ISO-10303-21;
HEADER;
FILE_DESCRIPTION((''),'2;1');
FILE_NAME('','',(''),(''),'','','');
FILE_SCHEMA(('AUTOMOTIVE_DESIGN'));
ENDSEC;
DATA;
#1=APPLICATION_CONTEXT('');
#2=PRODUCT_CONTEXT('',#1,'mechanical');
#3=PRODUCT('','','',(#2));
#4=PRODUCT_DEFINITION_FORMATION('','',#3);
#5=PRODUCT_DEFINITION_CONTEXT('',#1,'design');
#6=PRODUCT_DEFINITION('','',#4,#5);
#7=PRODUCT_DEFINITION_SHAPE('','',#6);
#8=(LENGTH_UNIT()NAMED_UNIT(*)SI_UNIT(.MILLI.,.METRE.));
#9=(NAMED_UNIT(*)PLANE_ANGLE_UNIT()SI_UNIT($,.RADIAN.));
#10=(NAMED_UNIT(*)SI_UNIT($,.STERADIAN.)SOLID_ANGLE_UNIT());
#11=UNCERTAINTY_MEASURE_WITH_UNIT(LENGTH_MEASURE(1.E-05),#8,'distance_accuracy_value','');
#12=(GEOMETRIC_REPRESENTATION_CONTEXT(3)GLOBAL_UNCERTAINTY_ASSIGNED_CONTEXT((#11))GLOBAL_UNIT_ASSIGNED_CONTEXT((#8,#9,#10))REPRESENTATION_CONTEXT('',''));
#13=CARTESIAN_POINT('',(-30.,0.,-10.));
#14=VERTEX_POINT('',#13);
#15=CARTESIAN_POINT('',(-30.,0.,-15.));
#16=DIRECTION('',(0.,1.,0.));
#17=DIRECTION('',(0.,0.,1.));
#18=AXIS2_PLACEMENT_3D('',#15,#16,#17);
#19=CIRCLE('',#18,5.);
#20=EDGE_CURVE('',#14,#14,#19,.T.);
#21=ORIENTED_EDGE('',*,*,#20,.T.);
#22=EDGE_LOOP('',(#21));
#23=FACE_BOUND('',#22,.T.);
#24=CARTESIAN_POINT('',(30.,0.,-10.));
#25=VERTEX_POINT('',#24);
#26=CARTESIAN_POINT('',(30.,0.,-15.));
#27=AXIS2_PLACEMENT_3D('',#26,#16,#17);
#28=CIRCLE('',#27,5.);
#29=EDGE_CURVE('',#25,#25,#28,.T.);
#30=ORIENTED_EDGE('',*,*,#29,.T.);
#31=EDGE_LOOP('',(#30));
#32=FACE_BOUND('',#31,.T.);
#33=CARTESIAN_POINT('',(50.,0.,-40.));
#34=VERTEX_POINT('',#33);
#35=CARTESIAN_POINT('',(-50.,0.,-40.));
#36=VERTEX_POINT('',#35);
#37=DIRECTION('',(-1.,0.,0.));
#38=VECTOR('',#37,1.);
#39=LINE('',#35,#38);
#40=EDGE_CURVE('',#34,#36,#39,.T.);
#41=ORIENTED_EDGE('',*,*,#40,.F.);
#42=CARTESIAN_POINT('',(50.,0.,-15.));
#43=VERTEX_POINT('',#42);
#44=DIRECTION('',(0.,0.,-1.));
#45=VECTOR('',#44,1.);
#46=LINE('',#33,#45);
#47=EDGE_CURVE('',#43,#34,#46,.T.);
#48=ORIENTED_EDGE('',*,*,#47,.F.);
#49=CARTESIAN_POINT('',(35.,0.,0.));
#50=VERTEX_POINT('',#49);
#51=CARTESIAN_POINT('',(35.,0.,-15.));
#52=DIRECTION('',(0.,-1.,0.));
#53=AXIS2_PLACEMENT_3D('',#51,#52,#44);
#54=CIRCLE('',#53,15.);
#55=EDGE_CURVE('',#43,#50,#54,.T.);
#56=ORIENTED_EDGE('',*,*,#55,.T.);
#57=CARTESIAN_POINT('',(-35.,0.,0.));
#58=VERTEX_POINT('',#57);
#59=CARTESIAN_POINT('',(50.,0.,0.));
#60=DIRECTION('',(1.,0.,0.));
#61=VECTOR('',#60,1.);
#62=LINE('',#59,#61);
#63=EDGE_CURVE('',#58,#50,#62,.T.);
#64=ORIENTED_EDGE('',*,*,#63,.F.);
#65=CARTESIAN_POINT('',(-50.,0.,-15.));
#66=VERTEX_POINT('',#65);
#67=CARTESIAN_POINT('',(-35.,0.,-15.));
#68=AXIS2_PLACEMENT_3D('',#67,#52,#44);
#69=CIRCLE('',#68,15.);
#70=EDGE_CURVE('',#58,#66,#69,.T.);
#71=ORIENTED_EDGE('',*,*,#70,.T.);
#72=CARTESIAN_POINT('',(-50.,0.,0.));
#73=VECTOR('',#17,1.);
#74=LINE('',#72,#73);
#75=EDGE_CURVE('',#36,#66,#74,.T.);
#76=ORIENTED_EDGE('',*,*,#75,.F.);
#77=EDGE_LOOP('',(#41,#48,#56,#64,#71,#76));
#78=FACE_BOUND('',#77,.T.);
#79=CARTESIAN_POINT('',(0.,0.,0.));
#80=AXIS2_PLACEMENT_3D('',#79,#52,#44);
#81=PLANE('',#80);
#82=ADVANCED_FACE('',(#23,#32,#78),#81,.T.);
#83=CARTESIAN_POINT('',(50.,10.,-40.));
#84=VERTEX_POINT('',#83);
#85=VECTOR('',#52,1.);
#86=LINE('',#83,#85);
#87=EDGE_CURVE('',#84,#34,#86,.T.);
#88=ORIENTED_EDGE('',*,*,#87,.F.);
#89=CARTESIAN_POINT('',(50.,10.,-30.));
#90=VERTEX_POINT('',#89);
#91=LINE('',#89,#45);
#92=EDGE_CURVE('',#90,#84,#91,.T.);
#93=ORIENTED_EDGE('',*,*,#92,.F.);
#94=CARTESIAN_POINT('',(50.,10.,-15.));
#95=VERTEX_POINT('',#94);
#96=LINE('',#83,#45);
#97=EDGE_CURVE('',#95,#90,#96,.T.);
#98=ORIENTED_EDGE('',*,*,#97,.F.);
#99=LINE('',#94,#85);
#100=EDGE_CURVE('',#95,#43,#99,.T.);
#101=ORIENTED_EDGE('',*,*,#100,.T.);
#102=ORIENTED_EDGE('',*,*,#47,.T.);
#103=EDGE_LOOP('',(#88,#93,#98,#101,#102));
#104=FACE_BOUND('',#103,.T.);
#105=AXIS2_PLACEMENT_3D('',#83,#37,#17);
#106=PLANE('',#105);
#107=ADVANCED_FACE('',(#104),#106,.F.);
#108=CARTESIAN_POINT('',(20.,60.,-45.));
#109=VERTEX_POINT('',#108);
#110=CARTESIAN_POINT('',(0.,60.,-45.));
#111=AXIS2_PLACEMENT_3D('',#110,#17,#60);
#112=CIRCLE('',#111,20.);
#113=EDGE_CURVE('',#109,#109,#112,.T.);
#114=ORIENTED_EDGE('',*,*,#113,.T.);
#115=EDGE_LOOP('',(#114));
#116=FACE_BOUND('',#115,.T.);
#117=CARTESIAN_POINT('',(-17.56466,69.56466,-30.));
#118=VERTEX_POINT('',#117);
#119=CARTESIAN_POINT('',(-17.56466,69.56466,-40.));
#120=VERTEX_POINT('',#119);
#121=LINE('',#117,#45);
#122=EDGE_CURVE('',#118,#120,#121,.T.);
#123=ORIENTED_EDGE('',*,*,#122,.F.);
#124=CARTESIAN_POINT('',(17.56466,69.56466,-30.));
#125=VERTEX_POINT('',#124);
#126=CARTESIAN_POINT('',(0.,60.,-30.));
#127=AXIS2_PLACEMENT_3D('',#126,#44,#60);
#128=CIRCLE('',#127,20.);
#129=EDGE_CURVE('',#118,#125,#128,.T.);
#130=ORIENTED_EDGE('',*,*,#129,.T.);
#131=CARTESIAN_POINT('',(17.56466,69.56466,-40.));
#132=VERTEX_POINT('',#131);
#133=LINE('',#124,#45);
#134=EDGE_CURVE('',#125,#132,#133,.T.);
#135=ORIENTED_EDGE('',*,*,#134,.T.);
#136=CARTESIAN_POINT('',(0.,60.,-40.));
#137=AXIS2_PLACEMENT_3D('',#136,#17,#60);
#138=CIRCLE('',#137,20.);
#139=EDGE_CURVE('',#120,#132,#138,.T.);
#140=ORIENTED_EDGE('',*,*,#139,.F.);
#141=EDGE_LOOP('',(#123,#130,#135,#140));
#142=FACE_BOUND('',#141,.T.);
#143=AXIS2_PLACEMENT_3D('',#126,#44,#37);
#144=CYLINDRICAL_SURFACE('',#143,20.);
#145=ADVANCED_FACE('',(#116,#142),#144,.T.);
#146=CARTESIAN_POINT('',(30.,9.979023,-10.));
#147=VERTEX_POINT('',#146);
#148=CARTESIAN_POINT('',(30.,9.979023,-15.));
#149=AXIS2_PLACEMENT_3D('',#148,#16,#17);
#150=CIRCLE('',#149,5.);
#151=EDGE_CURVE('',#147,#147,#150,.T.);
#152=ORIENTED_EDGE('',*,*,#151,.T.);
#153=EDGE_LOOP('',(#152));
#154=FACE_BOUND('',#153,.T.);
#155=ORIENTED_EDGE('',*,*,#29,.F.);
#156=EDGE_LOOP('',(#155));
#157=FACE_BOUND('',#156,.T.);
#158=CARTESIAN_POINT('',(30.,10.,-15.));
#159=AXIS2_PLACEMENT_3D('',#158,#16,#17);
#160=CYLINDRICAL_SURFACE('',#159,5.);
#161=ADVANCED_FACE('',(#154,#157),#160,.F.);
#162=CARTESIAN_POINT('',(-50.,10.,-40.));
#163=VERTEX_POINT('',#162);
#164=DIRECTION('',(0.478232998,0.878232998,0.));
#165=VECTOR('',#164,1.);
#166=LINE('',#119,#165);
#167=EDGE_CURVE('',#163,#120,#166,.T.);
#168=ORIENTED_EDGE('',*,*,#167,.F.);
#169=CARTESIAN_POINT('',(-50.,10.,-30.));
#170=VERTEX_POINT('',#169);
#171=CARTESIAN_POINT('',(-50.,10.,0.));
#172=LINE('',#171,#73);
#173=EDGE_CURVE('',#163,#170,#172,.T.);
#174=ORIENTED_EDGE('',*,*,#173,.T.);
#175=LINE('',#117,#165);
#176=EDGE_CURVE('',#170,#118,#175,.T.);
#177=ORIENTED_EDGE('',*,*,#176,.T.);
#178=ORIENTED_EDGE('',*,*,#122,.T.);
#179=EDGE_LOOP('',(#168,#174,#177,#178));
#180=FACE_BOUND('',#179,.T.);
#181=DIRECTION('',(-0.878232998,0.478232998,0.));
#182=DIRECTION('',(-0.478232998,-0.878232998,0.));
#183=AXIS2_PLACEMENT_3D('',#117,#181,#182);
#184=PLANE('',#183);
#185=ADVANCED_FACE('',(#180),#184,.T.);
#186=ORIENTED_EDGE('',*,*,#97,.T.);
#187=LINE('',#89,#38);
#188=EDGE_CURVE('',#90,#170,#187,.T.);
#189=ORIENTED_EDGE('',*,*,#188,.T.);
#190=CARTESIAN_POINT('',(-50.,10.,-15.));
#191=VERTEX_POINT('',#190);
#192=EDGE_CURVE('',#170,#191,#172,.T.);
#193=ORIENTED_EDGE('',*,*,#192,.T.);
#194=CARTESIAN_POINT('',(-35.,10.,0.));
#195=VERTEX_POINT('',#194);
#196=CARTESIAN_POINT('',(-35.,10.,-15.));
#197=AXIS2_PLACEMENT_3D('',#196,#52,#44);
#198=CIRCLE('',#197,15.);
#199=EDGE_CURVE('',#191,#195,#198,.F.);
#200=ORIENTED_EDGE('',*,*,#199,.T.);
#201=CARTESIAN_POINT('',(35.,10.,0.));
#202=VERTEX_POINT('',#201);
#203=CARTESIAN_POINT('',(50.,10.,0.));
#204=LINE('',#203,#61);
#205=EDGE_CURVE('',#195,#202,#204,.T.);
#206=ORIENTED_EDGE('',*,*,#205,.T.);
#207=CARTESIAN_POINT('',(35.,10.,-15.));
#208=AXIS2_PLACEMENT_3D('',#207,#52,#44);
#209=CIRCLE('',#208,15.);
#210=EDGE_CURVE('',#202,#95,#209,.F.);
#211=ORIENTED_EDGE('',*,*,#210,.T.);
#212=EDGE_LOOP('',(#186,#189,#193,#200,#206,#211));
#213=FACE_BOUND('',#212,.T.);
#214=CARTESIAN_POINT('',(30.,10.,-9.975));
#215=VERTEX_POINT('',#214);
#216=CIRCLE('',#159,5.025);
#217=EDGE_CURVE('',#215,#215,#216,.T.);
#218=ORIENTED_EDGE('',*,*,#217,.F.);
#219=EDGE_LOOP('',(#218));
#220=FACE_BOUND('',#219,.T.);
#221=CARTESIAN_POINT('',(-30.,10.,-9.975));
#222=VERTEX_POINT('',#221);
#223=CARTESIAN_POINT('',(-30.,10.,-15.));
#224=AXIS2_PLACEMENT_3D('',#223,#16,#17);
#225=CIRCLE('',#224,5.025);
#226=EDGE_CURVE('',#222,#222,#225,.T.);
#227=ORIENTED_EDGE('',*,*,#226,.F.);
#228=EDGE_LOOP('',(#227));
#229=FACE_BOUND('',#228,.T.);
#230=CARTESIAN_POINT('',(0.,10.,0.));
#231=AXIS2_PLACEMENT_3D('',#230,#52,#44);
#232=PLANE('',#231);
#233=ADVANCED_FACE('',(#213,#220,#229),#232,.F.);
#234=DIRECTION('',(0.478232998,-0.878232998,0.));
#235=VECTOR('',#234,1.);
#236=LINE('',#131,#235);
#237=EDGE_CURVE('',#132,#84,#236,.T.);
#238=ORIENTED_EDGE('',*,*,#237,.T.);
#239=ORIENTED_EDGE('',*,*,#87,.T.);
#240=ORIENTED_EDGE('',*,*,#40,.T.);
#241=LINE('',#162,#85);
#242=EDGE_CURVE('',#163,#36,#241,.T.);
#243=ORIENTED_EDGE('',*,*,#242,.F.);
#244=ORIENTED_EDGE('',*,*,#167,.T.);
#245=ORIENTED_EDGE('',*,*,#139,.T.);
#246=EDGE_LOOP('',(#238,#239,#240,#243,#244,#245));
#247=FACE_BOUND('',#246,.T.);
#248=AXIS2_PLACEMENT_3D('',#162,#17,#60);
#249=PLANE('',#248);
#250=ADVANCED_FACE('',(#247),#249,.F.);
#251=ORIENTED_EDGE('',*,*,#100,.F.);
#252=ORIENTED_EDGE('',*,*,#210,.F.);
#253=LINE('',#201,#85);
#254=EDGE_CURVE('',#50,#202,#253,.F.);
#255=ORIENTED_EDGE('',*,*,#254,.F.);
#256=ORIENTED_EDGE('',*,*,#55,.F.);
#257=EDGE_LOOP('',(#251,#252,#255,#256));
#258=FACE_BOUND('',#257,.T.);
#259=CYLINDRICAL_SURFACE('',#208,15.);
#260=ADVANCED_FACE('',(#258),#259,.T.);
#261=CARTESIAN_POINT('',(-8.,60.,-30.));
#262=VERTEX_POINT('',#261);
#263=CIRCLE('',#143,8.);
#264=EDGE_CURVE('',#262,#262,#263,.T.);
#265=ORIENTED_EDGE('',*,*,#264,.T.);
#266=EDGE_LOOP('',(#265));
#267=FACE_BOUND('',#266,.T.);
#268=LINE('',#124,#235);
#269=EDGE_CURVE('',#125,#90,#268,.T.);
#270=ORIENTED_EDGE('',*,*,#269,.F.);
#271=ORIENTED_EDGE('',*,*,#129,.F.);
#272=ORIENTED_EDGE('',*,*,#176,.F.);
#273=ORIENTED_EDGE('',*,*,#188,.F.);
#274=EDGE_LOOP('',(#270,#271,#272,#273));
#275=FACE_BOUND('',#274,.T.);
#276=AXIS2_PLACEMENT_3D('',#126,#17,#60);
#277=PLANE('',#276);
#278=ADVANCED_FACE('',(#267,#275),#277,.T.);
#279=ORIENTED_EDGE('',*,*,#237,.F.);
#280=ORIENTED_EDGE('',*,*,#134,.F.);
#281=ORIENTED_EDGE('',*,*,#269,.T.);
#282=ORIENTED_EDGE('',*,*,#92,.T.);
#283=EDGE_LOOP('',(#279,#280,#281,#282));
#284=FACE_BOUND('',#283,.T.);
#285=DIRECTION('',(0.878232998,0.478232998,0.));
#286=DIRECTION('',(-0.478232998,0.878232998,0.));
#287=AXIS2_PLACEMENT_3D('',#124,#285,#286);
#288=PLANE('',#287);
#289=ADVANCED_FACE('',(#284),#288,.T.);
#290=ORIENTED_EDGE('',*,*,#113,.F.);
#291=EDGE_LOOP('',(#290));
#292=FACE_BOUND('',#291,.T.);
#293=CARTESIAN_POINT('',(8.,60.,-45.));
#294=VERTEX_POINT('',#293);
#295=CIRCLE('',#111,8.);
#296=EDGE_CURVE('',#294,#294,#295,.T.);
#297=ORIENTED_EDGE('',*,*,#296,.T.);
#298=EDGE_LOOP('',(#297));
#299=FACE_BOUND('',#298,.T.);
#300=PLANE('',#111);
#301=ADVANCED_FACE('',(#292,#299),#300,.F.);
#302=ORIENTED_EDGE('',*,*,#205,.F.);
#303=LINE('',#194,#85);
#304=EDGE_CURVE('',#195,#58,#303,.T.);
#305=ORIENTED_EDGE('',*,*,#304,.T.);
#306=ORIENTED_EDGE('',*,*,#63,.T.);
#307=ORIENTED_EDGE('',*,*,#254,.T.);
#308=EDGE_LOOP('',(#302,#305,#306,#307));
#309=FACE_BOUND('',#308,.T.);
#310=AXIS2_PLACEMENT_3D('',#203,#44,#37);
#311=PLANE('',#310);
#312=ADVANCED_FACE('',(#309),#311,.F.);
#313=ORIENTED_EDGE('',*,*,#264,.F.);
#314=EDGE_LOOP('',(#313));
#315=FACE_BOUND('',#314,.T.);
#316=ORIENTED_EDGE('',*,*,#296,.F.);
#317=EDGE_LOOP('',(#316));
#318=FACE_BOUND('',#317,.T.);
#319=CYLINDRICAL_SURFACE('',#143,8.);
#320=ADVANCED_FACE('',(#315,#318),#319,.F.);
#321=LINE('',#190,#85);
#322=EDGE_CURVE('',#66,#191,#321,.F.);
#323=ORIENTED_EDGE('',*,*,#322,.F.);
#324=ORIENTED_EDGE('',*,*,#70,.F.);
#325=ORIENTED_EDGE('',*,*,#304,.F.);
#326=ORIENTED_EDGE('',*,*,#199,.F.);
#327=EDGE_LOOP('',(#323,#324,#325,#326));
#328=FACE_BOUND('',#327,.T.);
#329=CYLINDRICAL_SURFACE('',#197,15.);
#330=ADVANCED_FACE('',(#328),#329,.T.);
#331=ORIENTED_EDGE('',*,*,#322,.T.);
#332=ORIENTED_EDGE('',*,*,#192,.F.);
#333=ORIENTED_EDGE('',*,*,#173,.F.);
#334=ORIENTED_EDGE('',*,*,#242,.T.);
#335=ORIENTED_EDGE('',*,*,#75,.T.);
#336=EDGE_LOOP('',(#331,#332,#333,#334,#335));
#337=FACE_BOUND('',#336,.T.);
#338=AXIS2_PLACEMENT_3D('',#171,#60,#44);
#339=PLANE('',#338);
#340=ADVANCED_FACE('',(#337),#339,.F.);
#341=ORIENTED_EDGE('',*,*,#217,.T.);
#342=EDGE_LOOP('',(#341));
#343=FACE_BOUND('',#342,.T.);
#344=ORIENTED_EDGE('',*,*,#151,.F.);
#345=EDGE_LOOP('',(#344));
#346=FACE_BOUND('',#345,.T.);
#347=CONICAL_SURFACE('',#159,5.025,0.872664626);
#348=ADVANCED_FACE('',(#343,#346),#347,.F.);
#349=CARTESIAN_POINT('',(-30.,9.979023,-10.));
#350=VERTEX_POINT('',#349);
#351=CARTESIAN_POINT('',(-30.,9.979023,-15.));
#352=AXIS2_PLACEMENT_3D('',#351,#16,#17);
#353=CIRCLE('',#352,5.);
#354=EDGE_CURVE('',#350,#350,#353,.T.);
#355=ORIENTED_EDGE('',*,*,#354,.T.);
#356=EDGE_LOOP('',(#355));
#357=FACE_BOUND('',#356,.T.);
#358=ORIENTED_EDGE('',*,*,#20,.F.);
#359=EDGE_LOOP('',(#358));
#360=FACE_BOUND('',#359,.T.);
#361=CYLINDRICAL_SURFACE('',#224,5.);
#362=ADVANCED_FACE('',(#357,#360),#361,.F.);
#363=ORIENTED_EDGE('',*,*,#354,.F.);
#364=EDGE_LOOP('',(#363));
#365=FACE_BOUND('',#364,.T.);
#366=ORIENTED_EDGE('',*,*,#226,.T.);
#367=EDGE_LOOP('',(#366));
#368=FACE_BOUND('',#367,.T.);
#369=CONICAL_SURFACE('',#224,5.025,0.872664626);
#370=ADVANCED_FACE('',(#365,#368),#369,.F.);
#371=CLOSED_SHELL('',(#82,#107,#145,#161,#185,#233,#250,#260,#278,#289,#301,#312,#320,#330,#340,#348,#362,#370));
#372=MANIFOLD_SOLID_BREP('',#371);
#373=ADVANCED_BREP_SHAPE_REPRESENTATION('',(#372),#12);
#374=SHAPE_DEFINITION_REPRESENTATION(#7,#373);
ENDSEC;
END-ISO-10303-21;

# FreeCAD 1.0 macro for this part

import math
import FreeCAD as App
import Part
import Sketcher

V = App.Vector


def edges_at(feature, points):
    """Names of the edges that pass closest to the given points."""
    edges = feature.Shape.Edges
    near = lambda p: min(range(len(edges)), key=lambda i: edges[i].distToShape(Part.Vertex(*p))[0])
    return sorted({f"Edge{near(p) + 1}" for p in points})


def add_polygon(sketch, points):
    """Adds a closed chain of lines whose ends are joined by coincident constraints."""
    first, n = sketch.GeometryCount, len(points)
    for a, b in zip(points, points[1:] + points[:1]):
        sketch.addGeometry(Part.LineSegment(App.Vector(*a, 0), App.Vector(*b, 0)), False)
    for i in range(n):
        sketch.addConstraint(Sketcher.Constraint("Coincident", first + i, 2, first + (i + 1) % n, 1))

doc = App.newDocument("Part")
body = doc.addObject("PartDesign::Body", "Body")

# Sketch on XZ plane
sketch1 = doc.addObject("Sketcher::SketchObject", "Sketch")
body.addObject(sketch1)
sketch1.AttachmentSupport = (doc.XZ_Plane, [""])
sketch1.MapMode = "FlatFace"
add_polygon(sketch1, [(-50, -40), (-50, 0), (50, 0), (50, -40)])  # lines 0-3
sketch1.addConstraint([
    Sketcher.Constraint("Vertical", 0),
    Sketcher.Constraint("Horizontal", 1),
    Sketcher.Constraint("Vertical", 2),
    Sketcher.Constraint("Horizontal", 3),
    Sketcher.Constraint("Symmetric", 0, 2, 1, 2, -1, 1),
    Sketcher.Constraint("DistanceX", 1, 1, 1, 2, 100.0),
    Sketcher.Constraint("DistanceY", 0, 1, 0, 2, 40.0),
])
pad1 = doc.addObject("PartDesign::Pad", "Pad")
body.addObject(pad1)
pad1.Profile = sketch1
pad1.Length = 10
pad1.Reversed = True

# Sketch on XY plane
sketch2 = doc.addObject("Sketcher::SketchObject", "Sketch001")
body.addObject(sketch2)
sketch2.AttachmentSupport = (doc.XY_Plane, [""])
sketch2.MapMode = "FlatFace"
sketch2.AttachmentOffset = App.Placement(V(0, 0, -40), App.Rotation())
sketch2.addGeometry([
    Part.LineSegment(V(18, 70, 0), V(50, 10, 0)),  # 0
    Part.LineSegment(V(50, 10, 0), V(-50, 10, 0)),  # 1
    Part.LineSegment(V(-50, 10, 0), V(-18, 70, 0)),  # 2
    Part.ArcOfCircle(Part.Circle(V(0, 60, 0), V(0, 0, 1), 20), math.radians(29), math.radians(151)),  # 3
    Part.Circle(V(0, 60, 0), V(0, 0, 1), 8),  # 4
], False)
sketch2.addConstraint([
    Sketcher.Constraint("Coincident", 0, 2, 1, 1),
    Sketcher.Constraint("Coincident", 1, 2, 2, 1),
    Sketcher.Constraint("Tangent", 2, 2, 3, 2),
    Sketcher.Constraint("Tangent", 3, 1, 0, 1),
    Sketcher.Constraint("Horizontal", 1),
    Sketcher.Constraint("Coincident", 4, 3, 3, 3),
    Sketcher.Constraint("Symmetric", 2, 2, 3, 1, -2),
    Sketcher.Constraint("Diameter", 4, 16.0),
    Sketcher.Constraint("Radius", 3, 20.0),
    Sketcher.Constraint("DistanceX", 1, 2, 1, 1, 100.0),
    Sketcher.Constraint("DistanceY", -1, 1, 3, 3, 60.0),
    Sketcher.Constraint("DistanceY", -1, 1, 0, 2, 10.0),
])
pad2 = doc.addObject("PartDesign::Pad", "Pad001")
body.addObject(pad2)
pad2.Profile = sketch2
pad2.Length = 10

# Sketch on XY plane
sketch3 = doc.addObject("Sketcher::SketchObject", "Sketch002")
body.addObject(sketch3)
sketch3.AttachmentSupport = (doc.XY_Plane, [""])
sketch3.MapMode = "FlatFace"
sketch3.AttachmentOffset = App.Placement(V(0, 0, -45), App.Rotation())
sketch3.addGeometry([
    Part.Circle(V(0, 60, 0), V(0, 0, 1), 20),
    Part.Circle(V(0, 60, 0), V(0, 0, 1), 8),
], False)
sketch3.addConstraint([
    Sketcher.Constraint("Coincident", 1, 3, 0, 3),
    Sketcher.Constraint("PointOnObject", 0, 3, -2),
    Sketcher.Constraint("Diameter", 0, 40.0),
    Sketcher.Constraint("Diameter", 1, 16.0),
    Sketcher.Constraint("DistanceY", -1, 1, 0, 3, 60.0),
])
pad3 = doc.addObject("PartDesign::Pad", "Pad002")
body.addObject(pad3)
pad3.Profile = sketch3
pad3.Length = 15

# Sketch on XZ plane
sketch4 = doc.addObject("Sketcher::SketchObject", "Sketch003")
body.addObject(sketch4)
sketch4.AttachmentSupport = (doc.XZ_Plane, [""])
sketch4.MapMode = "FlatFace"
sketch4.AttachmentOffset = App.Placement(V(0, 0, -10), App.Rotation())
sketch4.addGeometry(Part.Circle(V(30, -15, 0), V(0, 0, 1), 5), False)
sketch4.addConstraint([
    Sketcher.Constraint("Diameter", 0, 10.0),
    Sketcher.Constraint("DistanceX", -1, 1, 0, 3, 30.0),
    Sketcher.Constraint("DistanceY", 0, 3, -1, 1, 15.0),
])
doc.recompute()
hole = doc.addObject("PartDesign::Hole", "Hole")
body.addObject(hole)
hole.Profile = sketch4
hole.ThreadType = "None"
hole.Diameter = 10
hole.DepthType = "ThroughAll"
hole.HoleCutType = "Countersink"
hole.HoleCutDiameter = 10.05
hole.HoleCutCountersinkAngle = 100
hole.Reversed = True

# Sketch on XZ plane
sketch5 = doc.addObject("Sketcher::SketchObject", "Sketch004")
body.addObject(sketch5)
sketch5.AttachmentSupport = (doc.XZ_Plane, [""])
sketch5.MapMode = "FlatFace"
sketch5.AttachmentOffset = App.Placement(V(0, 0, -10), App.Rotation())
sketch5.addGeometry(Part.Circle(V(-30, -15, 0), V(0, 0, 1), 5), False)
sketch5.addConstraint([
    Sketcher.Constraint("Diameter", 0, 10.0),
    Sketcher.Constraint("DistanceX", 0, 3, -1, 1, 30.0),
    Sketcher.Constraint("DistanceY", 0, 3, -1, 1, 15.0),
])
doc.recompute()
hole2 = doc.addObject("PartDesign::Hole", "Hole001")
body.addObject(hole2)
hole2.Profile = sketch5
hole2.ThreadType = "None"
hole2.Diameter = 10
hole2.DepthType = "ThroughAll"
hole2.HoleCutType = "Countersink"
hole2.HoleCutDiameter = 10.05
hole2.HoleCutCountersinkAngle = 100
hole2.Reversed = True
doc.recompute()

fillet = doc.addObject("PartDesign::Fillet", "Fillet")
body.addObject(fillet)
fillet.Base = (hole2, edges_at(hole2, [(50, 5, 0), (-50, 5, 0)]))
fillet.Radius = 15

doc.recompute()
